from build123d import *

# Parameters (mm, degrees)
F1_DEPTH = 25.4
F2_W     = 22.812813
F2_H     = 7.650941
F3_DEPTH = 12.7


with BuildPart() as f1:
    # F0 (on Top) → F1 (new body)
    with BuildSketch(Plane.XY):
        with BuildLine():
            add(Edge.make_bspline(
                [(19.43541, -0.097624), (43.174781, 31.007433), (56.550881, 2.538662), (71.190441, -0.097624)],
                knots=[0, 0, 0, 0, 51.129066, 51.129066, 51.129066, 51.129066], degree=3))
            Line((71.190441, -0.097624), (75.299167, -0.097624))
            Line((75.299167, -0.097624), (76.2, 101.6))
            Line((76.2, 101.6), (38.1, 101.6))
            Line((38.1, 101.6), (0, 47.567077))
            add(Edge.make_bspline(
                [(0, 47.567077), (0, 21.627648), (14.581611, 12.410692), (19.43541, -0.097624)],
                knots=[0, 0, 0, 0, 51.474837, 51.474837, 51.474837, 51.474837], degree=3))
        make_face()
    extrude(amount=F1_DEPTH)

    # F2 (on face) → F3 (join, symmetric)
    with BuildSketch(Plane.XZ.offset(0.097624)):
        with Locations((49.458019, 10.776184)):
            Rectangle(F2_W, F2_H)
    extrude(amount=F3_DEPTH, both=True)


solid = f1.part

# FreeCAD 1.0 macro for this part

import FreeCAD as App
import Part
import Sketcher
Q = App.Units.Quantity

doc = App.newDocument("Part")
body = doc.addObject("PartDesign::Body", "Body")

sketch1 = body.newObject("Sketcher::SketchObject", "Sketch")
sketch1.AttachmentSupport = (doc.getObject("XY_Plane"), [""])
sketch1.MapMode = "FlatFace"
sketch1.addGeometry([
    Part.BSplineCurve([App.Vector(19.43541, -0.097624, 0), App.Vector(43.174781, 31.007433, 0), App.Vector(56.550881, 2.538662, 0), App.Vector(71.190441, -0.097624, 0)], [4, 4], [0, 51.129066], False, 3, [1, 1, 1, 1], False),
    Part.LineSegment(App.Vector(71.190441, -0.097624, 0), App.Vector(75.299167, -0.097624, 0)),
    Part.LineSegment(App.Vector(75.299167, -0.097624, 0), App.Vector(76.2, 101.6, 0)),
    Part.LineSegment(App.Vector(76.2, 101.6, 0), App.Vector(38.1, 101.6, 0)),
    Part.LineSegment(App.Vector(38.1, 101.6, 0), App.Vector(0, 47.567077, 0)),
    Part.BSplineCurve([App.Vector(0, 47.567077, 0), App.Vector(0, 21.627648, 0), App.Vector(14.581611, 12.410692, 0), App.Vector(19.43541, -0.097624, 0)], [4, 4], [0, 51.474837], False, 3, [1, 1, 1, 1], False),
], False)
sketch1.addConstraint([
    Sketcher.Constraint("Block", 0),
    Sketcher.Constraint("Block", 5),
    Sketcher.Constraint("Coincident", 0, 2, 1, 1),
    Sketcher.Constraint("Coincident", 1, 2, 2, 1),
    Sketcher.Constraint("Coincident", 2, 2, 3, 1),
    Sketcher.Constraint("Coincident", 3, 2, 4, 1),
    Sketcher.Constraint("Coincident", 4, 2, 5, 1),
    Sketcher.Constraint("Horizontal", 1),
    Sketcher.Constraint("Horizontal", 3),
    Sketcher.Constraint("DistanceX", 3, 2, 3, 1, Q("1.5 in")),
    Sketcher.Constraint("DistanceX", -1, 1, 2, 2, Q("3 in")),
    Sketcher.Constraint("DistanceY", -1, 1, 2, 2, Q("4 in")),
    Sketcher.Constraint("DistanceX", 1, 1, 1, 2, 4.108726),
])
pad1 = body.newObject("PartDesign::Pad", "Pad")
pad1.Profile = sketch1
pad1.Length = Q("1 in")

sketch2 = body.newObject("Sketcher::SketchObject", "Sketch001")
sketch2.AttachmentSupport = (doc.getObject("XZ_Plane"), [""])
sketch2.MapMode = "FlatFace"
sketch2.AttachmentOffset = App.Placement(App.Vector(0, 0, 0.097624), App.Rotation())
sketch2.addGeometry([
    Part.LineSegment(App.Vector(38, 15, 0), App.Vector(38, 7, 0)),
    Part.LineSegment(App.Vector(38, 7, 0), App.Vector(61, 7, 0)),
    Part.LineSegment(App.Vector(61, 7, 0), App.Vector(61, 15, 0)),
    Part.LineSegment(App.Vector(61, 15, 0), App.Vector(38, 15, 0)),
], False)
sketch2.addConstraint([
    Sketcher.Constraint("Coincident", 0, 2, 1, 1),
    Sketcher.Constraint("Coincident", 1, 2, 2, 1),
    Sketcher.Constraint("Coincident", 2, 2, 3, 1),
    Sketcher.Constraint("Coincident", 3, 2, 0, 1),
    Sketcher.Constraint("Vertical", 0),
    Sketcher.Constraint("Horizontal", 1),
    Sketcher.Constraint("Vertical", 2),
    Sketcher.Constraint("Horizontal", 3),
    Sketcher.Constraint("DistanceY", 0, 2, 0, 1, 7.650941),
    Sketcher.Constraint("DistanceX", 1, 1, 1, 2, 22.812813),
    Sketcher.Constraint("DistanceX", -1, 1, 0, 2, 38.051612),
    Sketcher.Constraint("DistanceY", -1, 1, 0, 2, 6.950713),
])
pad2 = body.newObject("PartDesign::Pad", "Pad001")
pad2.Profile = sketch2
pad2.Length = Q("1 in")
pad2.Midplane = True

doc.recompute()
